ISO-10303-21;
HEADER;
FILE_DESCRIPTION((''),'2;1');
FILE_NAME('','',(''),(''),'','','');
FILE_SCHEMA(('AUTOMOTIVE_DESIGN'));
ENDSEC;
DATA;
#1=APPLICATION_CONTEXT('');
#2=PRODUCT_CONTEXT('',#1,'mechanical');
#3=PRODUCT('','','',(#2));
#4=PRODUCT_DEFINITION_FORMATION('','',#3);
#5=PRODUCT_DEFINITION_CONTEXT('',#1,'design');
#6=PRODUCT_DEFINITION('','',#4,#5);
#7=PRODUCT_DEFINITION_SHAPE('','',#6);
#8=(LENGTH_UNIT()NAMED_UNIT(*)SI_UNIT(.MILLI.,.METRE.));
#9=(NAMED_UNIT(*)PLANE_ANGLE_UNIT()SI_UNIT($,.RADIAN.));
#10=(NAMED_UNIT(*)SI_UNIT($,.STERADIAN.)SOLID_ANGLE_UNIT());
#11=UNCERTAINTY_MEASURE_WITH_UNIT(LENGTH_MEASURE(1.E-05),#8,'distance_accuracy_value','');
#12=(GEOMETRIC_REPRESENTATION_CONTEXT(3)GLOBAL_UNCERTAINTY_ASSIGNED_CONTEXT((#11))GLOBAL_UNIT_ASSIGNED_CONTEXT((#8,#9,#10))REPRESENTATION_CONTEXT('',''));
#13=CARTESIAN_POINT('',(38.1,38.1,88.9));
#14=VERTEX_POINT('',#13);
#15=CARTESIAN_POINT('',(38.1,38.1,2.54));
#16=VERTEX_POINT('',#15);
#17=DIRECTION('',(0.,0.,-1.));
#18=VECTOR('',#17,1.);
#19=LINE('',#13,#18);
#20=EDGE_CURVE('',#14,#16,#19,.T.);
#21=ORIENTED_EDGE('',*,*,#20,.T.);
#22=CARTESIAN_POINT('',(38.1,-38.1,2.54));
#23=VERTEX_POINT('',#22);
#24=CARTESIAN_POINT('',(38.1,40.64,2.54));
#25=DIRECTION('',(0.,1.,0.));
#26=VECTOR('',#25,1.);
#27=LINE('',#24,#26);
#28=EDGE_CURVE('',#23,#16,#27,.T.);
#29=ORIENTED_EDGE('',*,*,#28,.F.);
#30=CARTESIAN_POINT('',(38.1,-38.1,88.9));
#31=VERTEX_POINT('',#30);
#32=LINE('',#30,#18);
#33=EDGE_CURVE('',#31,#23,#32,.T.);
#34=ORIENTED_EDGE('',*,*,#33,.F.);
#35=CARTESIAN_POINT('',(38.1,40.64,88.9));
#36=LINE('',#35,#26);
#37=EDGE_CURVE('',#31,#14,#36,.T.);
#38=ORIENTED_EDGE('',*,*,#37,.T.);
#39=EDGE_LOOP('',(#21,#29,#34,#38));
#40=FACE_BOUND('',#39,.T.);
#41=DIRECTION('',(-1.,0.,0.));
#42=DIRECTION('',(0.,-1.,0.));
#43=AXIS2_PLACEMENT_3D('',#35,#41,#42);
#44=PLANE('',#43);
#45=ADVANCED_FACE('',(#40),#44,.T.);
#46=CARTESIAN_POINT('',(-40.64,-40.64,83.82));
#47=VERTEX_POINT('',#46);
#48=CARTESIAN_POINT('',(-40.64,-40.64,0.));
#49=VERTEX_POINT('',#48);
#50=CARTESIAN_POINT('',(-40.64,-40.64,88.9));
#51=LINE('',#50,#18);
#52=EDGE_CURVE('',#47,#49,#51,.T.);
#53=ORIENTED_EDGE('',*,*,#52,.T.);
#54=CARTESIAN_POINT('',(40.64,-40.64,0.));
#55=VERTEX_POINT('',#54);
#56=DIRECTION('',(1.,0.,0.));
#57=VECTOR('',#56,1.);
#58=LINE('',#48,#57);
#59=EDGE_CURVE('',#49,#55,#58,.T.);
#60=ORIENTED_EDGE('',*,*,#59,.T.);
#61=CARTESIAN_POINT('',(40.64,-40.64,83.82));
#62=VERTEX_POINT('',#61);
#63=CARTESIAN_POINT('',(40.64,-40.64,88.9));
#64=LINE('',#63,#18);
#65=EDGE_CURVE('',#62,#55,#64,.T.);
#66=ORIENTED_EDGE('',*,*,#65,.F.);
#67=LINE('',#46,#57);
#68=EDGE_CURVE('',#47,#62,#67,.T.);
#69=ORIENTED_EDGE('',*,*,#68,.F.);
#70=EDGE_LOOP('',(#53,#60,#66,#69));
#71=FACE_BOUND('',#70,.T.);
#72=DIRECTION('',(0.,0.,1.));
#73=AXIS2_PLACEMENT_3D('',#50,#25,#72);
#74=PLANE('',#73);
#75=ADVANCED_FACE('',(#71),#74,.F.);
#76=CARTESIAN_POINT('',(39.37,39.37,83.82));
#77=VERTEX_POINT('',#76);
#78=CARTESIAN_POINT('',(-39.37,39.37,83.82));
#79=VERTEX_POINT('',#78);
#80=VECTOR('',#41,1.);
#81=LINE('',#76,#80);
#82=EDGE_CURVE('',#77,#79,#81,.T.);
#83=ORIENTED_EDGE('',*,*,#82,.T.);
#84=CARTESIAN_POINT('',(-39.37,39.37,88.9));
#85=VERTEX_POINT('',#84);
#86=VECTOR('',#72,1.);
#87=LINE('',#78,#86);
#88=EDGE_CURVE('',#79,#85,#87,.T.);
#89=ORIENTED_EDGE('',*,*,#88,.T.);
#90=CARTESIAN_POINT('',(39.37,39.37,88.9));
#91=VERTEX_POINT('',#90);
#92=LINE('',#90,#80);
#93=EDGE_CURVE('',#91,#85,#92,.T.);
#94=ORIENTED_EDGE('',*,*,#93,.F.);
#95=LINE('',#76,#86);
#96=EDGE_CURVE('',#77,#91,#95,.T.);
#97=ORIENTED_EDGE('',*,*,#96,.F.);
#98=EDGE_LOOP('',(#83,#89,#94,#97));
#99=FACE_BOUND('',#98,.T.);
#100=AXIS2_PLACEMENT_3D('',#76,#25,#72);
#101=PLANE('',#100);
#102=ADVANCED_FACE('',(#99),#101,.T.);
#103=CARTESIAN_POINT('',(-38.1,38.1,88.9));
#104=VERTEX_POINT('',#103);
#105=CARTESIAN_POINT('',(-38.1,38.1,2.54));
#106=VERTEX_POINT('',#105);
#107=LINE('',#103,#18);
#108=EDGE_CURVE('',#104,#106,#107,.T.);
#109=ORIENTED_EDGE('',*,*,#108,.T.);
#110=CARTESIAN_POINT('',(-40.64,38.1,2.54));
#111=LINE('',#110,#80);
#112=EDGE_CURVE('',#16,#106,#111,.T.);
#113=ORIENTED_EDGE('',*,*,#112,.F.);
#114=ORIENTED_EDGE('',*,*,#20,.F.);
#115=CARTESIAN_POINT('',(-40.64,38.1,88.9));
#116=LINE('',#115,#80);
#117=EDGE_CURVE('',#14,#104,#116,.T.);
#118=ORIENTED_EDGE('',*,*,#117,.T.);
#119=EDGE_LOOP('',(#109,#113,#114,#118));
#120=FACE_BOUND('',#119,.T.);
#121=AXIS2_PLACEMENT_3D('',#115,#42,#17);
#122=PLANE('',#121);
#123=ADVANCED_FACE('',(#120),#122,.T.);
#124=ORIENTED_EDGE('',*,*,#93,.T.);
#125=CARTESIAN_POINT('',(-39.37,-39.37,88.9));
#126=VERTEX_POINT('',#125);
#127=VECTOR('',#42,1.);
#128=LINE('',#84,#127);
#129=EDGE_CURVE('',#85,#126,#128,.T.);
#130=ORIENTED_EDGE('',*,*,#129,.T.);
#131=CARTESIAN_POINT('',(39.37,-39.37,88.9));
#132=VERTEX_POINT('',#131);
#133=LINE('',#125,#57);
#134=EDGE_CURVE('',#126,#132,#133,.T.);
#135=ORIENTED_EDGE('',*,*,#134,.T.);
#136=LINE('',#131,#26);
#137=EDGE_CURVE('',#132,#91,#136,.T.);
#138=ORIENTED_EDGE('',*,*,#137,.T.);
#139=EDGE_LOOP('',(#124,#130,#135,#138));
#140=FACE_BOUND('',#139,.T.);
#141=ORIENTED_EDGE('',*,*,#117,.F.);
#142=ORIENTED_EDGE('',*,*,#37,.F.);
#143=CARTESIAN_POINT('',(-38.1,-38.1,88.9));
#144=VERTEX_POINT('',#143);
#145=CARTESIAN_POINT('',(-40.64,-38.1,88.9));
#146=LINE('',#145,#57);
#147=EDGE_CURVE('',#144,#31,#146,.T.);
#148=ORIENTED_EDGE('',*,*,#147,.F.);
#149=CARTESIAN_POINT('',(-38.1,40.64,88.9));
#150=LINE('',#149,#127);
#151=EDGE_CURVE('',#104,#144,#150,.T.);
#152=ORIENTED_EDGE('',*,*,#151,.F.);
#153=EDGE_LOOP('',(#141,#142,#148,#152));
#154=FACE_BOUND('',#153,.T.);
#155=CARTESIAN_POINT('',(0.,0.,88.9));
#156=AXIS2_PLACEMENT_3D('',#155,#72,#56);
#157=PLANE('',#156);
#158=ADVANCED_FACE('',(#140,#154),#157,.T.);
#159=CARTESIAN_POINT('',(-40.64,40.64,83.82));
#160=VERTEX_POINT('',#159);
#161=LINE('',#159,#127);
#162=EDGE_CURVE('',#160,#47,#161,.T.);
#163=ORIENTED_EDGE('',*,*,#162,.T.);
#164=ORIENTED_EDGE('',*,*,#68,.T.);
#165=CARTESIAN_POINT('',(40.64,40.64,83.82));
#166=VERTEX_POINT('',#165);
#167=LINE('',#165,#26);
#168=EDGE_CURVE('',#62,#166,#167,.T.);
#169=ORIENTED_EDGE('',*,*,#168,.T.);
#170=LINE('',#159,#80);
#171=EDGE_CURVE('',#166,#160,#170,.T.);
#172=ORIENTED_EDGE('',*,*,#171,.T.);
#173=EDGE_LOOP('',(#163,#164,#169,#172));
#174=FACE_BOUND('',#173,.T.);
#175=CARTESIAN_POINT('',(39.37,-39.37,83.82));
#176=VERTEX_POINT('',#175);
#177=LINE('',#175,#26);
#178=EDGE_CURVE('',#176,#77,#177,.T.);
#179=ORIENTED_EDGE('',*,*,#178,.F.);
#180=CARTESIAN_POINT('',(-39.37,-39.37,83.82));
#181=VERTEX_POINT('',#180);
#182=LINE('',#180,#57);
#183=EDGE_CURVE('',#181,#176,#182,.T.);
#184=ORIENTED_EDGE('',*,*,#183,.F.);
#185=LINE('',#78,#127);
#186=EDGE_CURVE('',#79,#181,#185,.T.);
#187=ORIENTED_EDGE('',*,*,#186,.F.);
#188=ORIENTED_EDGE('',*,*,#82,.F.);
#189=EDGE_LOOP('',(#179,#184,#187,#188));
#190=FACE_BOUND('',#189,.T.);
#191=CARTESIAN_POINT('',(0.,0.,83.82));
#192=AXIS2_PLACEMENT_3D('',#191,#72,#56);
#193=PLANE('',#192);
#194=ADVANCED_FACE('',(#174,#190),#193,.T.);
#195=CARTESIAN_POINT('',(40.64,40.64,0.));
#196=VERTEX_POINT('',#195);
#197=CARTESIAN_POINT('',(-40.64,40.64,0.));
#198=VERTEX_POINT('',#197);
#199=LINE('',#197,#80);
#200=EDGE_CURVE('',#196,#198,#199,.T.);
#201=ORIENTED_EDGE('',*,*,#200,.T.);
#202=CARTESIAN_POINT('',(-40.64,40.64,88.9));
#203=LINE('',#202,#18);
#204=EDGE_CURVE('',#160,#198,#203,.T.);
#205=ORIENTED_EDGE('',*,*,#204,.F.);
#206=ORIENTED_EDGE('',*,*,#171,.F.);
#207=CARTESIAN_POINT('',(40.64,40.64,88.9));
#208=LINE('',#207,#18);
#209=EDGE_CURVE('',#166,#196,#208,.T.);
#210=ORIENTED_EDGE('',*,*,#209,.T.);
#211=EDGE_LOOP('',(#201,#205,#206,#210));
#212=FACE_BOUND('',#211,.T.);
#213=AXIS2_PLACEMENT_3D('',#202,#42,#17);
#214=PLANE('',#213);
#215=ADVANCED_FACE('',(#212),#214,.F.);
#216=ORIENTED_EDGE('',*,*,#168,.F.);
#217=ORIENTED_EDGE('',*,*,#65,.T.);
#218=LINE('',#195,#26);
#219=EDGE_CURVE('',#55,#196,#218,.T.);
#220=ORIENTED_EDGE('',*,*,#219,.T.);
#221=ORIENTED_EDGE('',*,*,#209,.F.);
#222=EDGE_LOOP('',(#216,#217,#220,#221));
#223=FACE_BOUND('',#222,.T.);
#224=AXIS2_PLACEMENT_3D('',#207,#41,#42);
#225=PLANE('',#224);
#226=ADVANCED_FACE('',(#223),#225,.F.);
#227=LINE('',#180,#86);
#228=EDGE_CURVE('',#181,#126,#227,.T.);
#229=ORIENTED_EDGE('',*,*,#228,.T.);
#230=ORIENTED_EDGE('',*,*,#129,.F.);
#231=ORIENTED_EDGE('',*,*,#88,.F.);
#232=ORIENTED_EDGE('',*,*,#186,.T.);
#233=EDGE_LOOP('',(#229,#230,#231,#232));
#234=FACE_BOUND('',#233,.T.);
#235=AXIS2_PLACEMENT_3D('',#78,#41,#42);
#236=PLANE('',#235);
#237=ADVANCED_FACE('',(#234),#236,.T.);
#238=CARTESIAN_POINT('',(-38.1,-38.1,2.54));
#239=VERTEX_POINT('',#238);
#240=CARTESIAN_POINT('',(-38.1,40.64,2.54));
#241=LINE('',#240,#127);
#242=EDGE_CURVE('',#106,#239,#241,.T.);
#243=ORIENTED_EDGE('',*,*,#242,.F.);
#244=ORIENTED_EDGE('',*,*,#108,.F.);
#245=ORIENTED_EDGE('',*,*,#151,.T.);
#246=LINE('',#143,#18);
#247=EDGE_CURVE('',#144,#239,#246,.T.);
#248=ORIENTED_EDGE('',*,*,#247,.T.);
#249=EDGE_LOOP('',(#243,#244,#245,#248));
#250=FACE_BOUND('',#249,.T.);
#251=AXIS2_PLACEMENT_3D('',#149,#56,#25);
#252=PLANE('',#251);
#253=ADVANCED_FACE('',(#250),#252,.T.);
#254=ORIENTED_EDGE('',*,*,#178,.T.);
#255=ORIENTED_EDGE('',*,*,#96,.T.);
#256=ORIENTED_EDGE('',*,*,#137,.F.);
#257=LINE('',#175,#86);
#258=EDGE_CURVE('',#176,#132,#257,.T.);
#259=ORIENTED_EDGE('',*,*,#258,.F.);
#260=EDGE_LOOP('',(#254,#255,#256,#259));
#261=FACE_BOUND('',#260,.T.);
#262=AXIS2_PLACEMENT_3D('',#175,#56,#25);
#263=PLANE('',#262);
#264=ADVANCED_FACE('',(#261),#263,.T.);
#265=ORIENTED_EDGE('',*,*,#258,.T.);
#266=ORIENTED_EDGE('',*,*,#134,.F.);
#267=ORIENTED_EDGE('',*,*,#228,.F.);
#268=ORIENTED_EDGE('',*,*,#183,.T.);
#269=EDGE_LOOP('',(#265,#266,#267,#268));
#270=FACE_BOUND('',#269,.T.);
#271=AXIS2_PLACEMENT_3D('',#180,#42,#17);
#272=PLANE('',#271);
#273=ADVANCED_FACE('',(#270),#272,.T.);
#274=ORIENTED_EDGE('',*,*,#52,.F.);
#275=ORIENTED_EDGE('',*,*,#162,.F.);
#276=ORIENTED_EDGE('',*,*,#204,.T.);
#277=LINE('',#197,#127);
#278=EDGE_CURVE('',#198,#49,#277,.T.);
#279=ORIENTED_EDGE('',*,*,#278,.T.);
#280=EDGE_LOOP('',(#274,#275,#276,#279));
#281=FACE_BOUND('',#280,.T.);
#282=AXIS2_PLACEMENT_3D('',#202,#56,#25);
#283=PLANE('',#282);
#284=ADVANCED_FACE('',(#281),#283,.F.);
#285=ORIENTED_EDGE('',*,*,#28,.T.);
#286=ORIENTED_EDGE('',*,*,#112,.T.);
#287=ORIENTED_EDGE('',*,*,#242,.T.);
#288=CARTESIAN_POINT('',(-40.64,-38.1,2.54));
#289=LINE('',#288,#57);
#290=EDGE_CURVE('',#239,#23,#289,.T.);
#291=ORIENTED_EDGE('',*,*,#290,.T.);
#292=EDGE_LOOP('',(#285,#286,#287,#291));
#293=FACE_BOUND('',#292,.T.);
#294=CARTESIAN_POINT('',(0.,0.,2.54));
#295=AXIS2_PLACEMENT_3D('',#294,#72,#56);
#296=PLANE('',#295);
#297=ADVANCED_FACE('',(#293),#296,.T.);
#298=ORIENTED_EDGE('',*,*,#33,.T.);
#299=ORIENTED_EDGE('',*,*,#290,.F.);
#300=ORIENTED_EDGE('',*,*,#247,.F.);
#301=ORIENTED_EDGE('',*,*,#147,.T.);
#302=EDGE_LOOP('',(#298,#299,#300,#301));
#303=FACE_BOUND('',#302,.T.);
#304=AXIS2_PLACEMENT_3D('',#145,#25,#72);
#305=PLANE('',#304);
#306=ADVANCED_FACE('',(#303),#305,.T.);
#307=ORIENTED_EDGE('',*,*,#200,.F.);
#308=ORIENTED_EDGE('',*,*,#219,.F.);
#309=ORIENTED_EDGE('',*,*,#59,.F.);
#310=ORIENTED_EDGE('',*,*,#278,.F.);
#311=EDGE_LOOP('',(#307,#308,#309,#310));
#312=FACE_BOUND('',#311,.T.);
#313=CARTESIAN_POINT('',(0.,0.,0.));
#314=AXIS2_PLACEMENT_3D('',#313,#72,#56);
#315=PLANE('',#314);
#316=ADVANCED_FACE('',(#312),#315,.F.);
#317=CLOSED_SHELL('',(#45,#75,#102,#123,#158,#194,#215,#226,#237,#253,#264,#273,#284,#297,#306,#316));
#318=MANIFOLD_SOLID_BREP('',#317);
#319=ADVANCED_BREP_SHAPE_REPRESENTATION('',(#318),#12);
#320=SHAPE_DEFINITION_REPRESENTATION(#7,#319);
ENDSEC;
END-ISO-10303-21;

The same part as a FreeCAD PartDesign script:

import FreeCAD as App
import Part
import Sketcher
from FreeCAD import Vector
Q = App.Units.Quantity


def faces_at(feature, points):
    """Names of the faces that lie closest to the given points."""
    faces = feature.Shape.Faces
    near = lambda p: min(range(len(faces)), key=lambda i: faces[i].distToShape(Part.Vertex(*p))[0])
    return sorted({f"Face{near(p) + 1}" for p in points})


def add_polygon(sketch, points):
    """Adds a closed chain of lines whose ends are joined by coincident constraints."""
    first, n = sketch.GeometryCount, len(points)
    for a, b in zip(points, points[1:] + points[:1]):
        sketch.addGeometry(Part.LineSegment(App.Vector(*a, 0), App.Vector(*b, 0)), False)
    for i in range(n):
        sketch.addConstraint(Sketcher.Constraint("Coincident", first + i, 2, first + (i + 1) % n, 1))

doc = App.newDocument("Part")
body = doc.addObject("PartDesign::Body", "Body")

sketch1 = body.newObject("Sketcher::SketchObject", "Sketch")
sketch1.AttachmentSupport = (doc.getObject("XY_Plane"), [""])
sketch1.MapMode = "FlatFace"
add_polygon(sketch1, [(-41, 41), (-41, -41), (41, -41), (41, 41)])
sketch1.addConstraint([
    Sketcher.Constraint("Vertical", 0),
    Sketcher.Constraint("Horizontal", 1),
    Sketcher.Constraint("Vertical", 2),
    Sketcher.Constraint("Horizontal", 3),
    Sketcher.Constraint("Symmetric", 0, 2, 2, 2, -1, 1),
    Sketcher.Constraint("Equal", 3, 0),
    Sketcher.Constraint("DistanceX", 1, 1, 1, 2, Q("3.2 in")),
])
pad1 = body.newObject("PartDesign::Pad", "Pad")
pad1.Profile = sketch1
pad1.Length = Q("3.5 in")
doc.recompute()

thickness = body.newObject("PartDesign::Thickness", "Thickness")
thickness.Base = (pad1, faces_at(pad1, [(0, 0, 88.9)]))
thickness.Value = Q("0.1 in")
thickness.Reversed = True
thickness.Join = "Intersection"

sketch2 = body.newObject("Sketcher::SketchObject", "Sketch001")
sketch2.AttachmentSupport = (doc.getObject("XY_Plane"), [""])
sketch2.MapMode = "FlatFace"
sketch2.AttachmentOffset = App.Placement(Vector(0, 0, 3.5 * 25.4), App.Rotation())
add_polygon(sketch2, [(-46, 43), (-46, -43), (46, -43), (46, 43)])
add_polygon(sketch2, [(39, -39), (-39, -39), (-39, 39), (39, 39)])
sketch2.addConstraint([
    Sketcher.Constraint("Vertical", 0),
    Sketcher.Constraint("Horizontal", 1),
    Sketcher.Constraint("Vertical", 2),
    Sketcher.Constraint("Horizontal", 3),
    Sketcher.Constraint("Horizontal", 4),
    Sketcher.Constraint("Vertical", 5),
    Sketcher.Constraint("Horizontal", 6),
    Sketcher.Constraint("Vertical", 7),
    Sketcher.Constraint("Symmetric", 0, 2, 2, 2, -1, 1),
    Sketcher.Constraint("Symmetric", 4, 2, 6, 2, -1, 1),
    Sketcher.Constraint("Equal", 6, 5),
    Sketcher.Constraint("DistanceX", 4, 2, 4, 1, Q("3.1 in")),
    Sketcher.Constraint("DistanceX", 1, 1, 1, 2, Q("91.781642 mm")),
    Sketcher.Constraint("DistanceY", 0, 2, 0, 1, Q("86.951733 mm")),
])
pocket1 = body.newObject("PartDesign::Pocket", "Pocket")
pocket1.Profile = sketch2
pocket1.Length = Q("0.2 in")

doc.recompute()
